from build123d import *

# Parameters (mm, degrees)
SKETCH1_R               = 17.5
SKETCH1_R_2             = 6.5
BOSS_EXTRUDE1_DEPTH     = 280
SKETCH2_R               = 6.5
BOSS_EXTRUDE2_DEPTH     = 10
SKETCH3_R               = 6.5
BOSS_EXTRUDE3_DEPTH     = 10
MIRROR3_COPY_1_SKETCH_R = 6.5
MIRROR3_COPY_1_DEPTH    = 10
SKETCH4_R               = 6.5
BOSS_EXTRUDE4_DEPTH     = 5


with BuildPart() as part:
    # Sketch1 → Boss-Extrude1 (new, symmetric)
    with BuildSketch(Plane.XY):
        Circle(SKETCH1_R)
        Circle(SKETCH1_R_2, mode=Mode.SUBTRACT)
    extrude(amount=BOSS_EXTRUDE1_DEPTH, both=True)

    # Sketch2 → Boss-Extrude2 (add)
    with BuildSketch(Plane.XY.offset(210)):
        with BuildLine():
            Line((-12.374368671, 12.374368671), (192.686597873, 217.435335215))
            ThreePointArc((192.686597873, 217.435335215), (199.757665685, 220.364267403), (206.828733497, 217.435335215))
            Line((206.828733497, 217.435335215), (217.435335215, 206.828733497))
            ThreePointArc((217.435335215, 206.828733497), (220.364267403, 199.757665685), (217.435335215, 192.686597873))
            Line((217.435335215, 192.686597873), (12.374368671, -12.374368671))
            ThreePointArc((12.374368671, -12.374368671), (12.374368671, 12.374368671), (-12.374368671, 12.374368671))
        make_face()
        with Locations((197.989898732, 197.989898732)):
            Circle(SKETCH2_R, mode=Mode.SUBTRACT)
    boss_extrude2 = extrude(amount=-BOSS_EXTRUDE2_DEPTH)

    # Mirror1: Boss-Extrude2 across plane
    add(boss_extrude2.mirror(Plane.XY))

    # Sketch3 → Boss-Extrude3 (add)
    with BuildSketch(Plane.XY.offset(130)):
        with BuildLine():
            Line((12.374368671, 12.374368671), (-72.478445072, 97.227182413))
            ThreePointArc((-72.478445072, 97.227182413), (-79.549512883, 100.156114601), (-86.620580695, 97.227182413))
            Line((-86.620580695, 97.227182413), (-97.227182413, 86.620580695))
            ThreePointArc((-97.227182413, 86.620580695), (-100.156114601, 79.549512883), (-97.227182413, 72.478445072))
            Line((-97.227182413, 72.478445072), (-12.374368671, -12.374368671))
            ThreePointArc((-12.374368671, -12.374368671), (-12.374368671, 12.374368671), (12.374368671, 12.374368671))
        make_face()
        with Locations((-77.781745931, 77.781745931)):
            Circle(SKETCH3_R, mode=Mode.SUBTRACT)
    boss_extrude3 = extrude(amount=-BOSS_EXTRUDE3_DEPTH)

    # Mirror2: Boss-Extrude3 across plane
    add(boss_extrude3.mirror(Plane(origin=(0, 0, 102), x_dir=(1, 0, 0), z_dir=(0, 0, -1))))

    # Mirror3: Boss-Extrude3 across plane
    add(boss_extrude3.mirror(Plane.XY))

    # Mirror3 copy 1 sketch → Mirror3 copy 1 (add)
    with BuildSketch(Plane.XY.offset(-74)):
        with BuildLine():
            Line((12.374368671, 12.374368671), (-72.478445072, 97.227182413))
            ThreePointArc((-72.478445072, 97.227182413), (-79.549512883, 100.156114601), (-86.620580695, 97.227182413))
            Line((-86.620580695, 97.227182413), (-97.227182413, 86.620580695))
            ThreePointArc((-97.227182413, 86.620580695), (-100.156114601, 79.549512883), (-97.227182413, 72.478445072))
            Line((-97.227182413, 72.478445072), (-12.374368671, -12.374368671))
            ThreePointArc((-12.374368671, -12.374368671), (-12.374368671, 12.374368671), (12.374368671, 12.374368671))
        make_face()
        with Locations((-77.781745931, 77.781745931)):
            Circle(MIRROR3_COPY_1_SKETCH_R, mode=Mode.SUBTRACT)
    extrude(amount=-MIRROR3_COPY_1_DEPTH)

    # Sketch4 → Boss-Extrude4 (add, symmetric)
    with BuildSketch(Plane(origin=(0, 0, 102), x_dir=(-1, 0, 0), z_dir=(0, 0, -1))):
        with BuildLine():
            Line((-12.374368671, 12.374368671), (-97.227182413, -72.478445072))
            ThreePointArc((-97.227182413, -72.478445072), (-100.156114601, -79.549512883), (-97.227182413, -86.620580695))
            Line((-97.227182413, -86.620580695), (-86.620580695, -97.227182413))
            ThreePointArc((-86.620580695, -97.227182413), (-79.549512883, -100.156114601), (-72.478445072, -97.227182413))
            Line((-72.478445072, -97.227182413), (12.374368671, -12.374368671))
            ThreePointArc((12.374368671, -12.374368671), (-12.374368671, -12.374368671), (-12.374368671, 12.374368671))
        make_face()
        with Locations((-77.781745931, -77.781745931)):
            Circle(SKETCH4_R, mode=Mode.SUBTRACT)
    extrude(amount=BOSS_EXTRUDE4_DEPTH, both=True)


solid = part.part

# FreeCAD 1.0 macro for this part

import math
import FreeCAD as App
import Part
import Sketcher
from FreeCAD import Vector
Q = App.Units.Quantity

doc = App.newDocument("Part")
params = doc.addObject("Spreadsheet::Sheet", "Params")
for row, (alias, value) in enumerate([
    ("sketch1_diameter", "35 mm"),
    ("sketch1_diameter2", "13 mm"),
    ("pad1_length", "560 mm"),
    ("sketch2_diameter", "13 mm"),
    ("sketch2_radius", "10 mm"),
    ("sketch2_radius2", "17.5 mm"),
    ("sketch2_length", "290 mm"),
    ("pad2_length", "10 mm"),
    ("sketch3_diameter", "13 mm"),
    ("sketch3_radius", "10 mm"),
    ("sketch3_radius2", "17.5 mm"),
    ("sketch3_length", "120 mm"),
    ("pad3_length", "10 mm"),
    ("sketch4_diameter", "13 mm"),
    ("sketch4_radius", "10 mm"),
    ("sketch4_radius2", "17.5 mm"),
    ("sketch4_length", "120 mm"),
    ("pad4_length", "10 mm"),
    ("sketch5_diameter", "13 mm"),
    ("sketch5_radius", "10 mm"),
    ("sketch5_radius2", "17.5 mm"),
    ("sketch5_length", "120 mm"),
    ("pad5_length", "10 mm"),
], start=1):
    params.set(f"A{row}", alias)
    params.set(f"B{row}", "=" + value)
    params.setAlias(f"B{row}", alias)

body = doc.addObject("PartDesign::Body", "Body")

sketch1 = body.newObject("Sketcher::SketchObject", "Sketch")
sketch1.AttachmentSupport = (doc.getObject("XY_Plane"), [""])
sketch1.MapMode = "FlatFace"
sketch1.addGeometry([
    Part.Circle(Vector(0, 0, 0), Vector(0, 0, 1), 17.5),
    Part.Circle(Vector(0, 0, 0), Vector(0, 0, 1), 6.5),
], False)
sketch1.addConstraint([
    Sketcher.Constraint("Coincident", 0, 3, -1, 1),
    Sketcher.Constraint("Coincident", 1, 3, -1, 1),
    Sketcher.Constraint("Diameter", 0, Q("35 mm")),
    Sketcher.Constraint("Diameter", 1, Q("13 mm")),
])
sketch1.setExpression("Constraints[2]", "Params.sketch1_diameter")
sketch1.setExpression("Constraints[3]", "Params.sketch1_diameter2")
pad1 = body.newObject("PartDesign::Pad", "Pad")
pad1.Profile = sketch1
pad1.setExpression("Length", "Params.pad1_length")
pad1.Midplane = True

sketch2 = body.newObject("Sketcher::SketchObject", "Sketch001")
sketch2.AttachmentSupport = (doc.getObject("XY_Plane"), [""])
sketch2.MapMode = "FlatFace"
sketch2.AttachmentOffset = App.Placement(Vector(0, 0, 210), App.Rotation())
sketch2.addGeometry([
    Part.LineSegment(Vector(192.686598, 217.435335, 0), Vector(-12.374369, 12.374369, 0)),
    Part.ArcOfCircle(Part.Circle(Vector(0, 0, 0), Vector(0, 0, 1), 17.5), math.radians(-45), math.radians(135)),
    Part.LineSegment(Vector(12.374369, -12.374369, 0), Vector(217.435335, 192.686598, 0)),
    Part.ArcOfCircle(Part.Circle(Vector(210.364267, 199.757666, 0), Vector(0, 0, 1), 10), math.radians(-45), math.radians(45)),
    Part.LineSegment(Vector(217.435335, 206.828733, 0), Vector(206.828733, 217.435335, 0)),
    Part.ArcOfCircle(Part.Circle(Vector(199.757666, 210.364267, 0), Vector(0, 0, 1), 10), math.radians(45), math.radians(135)),
    Part.Circle(Vector(197.989899, 197.989899, 0), Vector(0, 0, 1), 6.5),
], False)
sketch2.addConstraint([
    Sketcher.Constraint("Tangent", 0, 2, 1, 2),
    Sketcher.Constraint("Tangent", 1, 1, 2, 1),
    Sketcher.Constraint("Tangent", 2, 2, 3, 1),
    Sketcher.Constraint("Tangent", 3, 2, 4, 1),
    Sketcher.Constraint("Tangent", 4, 2, 5, 1),
    Sketcher.Constraint("Tangent", 5, 2, 0, 1),
    Sketcher.Constraint("Coincident", 1, 3, -1, 1),
    Sketcher.Constraint("Equal", 3, 5),
    Sketcher.Constraint("Parallel", 0, 2),
    Sketcher.Constraint("Perpendicular", 2, 4),
    Sketcher.Constraint("Horizontal", 4, 2, 5, 2),
    Sketcher.Constraint("Diameter", 6, Q("13 mm")),
    Sketcher.Constraint("Radius", 3, Q("10 mm")),
    Sketcher.Constraint("Radius", 1, Q("17.5 mm")),
    Sketcher.Constraint("Distance", 0, Q("290 mm")),
    Sketcher.Constraint("DistanceX", -1, 1, 6, 3, Q("197.989899 mm")),
    Sketcher.Constraint("DistanceY", -1, 1, 6, 3, Q("197.989899 mm")),
])
sketch2.setExpression("Constraints[11]", "Params.sketch2_diameter")
sketch2.setExpression("Constraints[12]", "Params.sketch2_radius")
sketch2.setExpression("Constraints[13]", "Params.sketch2_radius2")
sketch2.setExpression("Constraints[14]", "Params.sketch2_length")
pad2 = body.newObject("PartDesign::Pad", "Pad001")
pad2.Profile = sketch2
pad2.setExpression("Length", "Params.pad2_length")
pad2.Reversed = True
doc.recompute()

mirrored = body.newObject("PartDesign::Mirrored", "Mirrored")
mirrored.Originals = [pad2]
mirrored.MirrorPlane = (doc.getObject("XY_Plane"), [""])
body.Tip = mirrored

sketch3 = body.newObject("Sketcher::SketchObject", "Sketch002")
sketch3.AttachmentSupport = (doc.getObject("XY_Plane"), [""])
sketch3.MapMode = "FlatFace"
sketch3.AttachmentOffset = App.Placement(Vector(0, 0, 130), App.Rotation())
sketch3.addGeometry([
    Part.LineSegment(Vector(12.374369, 12.374369, 0), Vector(-72.478445, 97.227182, 0)),
    Part.ArcOfCircle(Part.Circle(Vector(-79.549513, 90.156115, 0), Vector(0, 0, 1), 10), math.radians(45), math.radians(135)),
    Part.LineSegment(Vector(-86.620581, 97.227182, 0), Vector(-97.227182, 86.620581, 0)),
    Part.ArcOfCircle(Part.Circle(Vector(-90.156115, 79.549513, 0), Vector(0, 0, 1), 10), math.radians(135), math.radians(225)),
    Part.LineSegment(Vector(-97.227182, 72.478445, 0), Vector(-12.374369, -12.374369, 0)),
    Part.ArcOfCircle(Part.Circle(Vector(0, 0, 0), Vector(0, 0, 1), 17.5), math.radians(45), math.radians(225)),
    Part.Circle(Vector(-77.781746, 77.781746, 0), Vector(0, 0, 1), 6.5),
], False)
sketch3.addConstraint([
    Sketcher.Constraint("Tangent", 0, 2, 1, 1),
    Sketcher.Constraint("Tangent", 1, 2, 2, 1),
    Sketcher.Constraint("Tangent", 2, 2, 3, 1),
    Sketcher.Constraint("Tangent", 3, 2, 4, 1),
    Sketcher.Constraint("Tangent", 4, 2, 5, 2),
    Sketcher.Constraint("Tangent", 5, 1, 0, 1),
    Sketcher.Constraint("Coincident", 5, 3, -1, 1),
    Sketcher.Constraint("Equal", 1, 3),
    Sketcher.Constraint("Perpendicular", 0, 2),
    Sketcher.Constraint("Perpendicular", 2, 4),
    Sketcher.Constraint("Horizontal", 0, 2, 1, 2),
    Sketcher.Constraint("Diameter", 6, Q("13 mm")),
    Sketcher.Constraint("Radius", 1, Q("10 mm")),
    Sketcher.Constraint("Radius", 5, Q("17.5 mm")),
    Sketcher.Constraint("Distance", 0, Q("120 mm")),
    Sketcher.Constraint("DistanceX", 6, 3, 0, 2, Q("5.303301 mm")),
    Sketcher.Constraint("DistanceY", 3, 2, 6, 3, Q("5.303301 mm")),
])
sketch3.setExpression("Constraints[11]", "Params.sketch3_diameter")
sketch3.setExpression("Constraints[12]", "Params.sketch3_radius")
sketch3.setExpression("Constraints[13]", "Params.sketch3_radius2")
sketch3.setExpression("Constraints[14]", "Params.sketch3_length")
pad3 = body.newObject("PartDesign::Pad", "Pad002")
pad3.Profile = sketch3
pad3.setExpression("Length", "Params.pad3_length")
pad3.Reversed = True
doc.recompute()

datumplane = body.newObject("PartDesign::Plane", "DatumPlane")
datumplane.AttachmentSupport = (doc.getObject("XY_Plane"), [""])
datumplane.MapMode = "FlatFace"
datumplane.AttachmentOffset = App.Placement(Vector(0, 0, 102), App.Rotation())
mirrored2 = body.newObject("PartDesign::Mirrored", "Mirrored001")
mirrored2.Originals = [pad3]
mirrored2.MirrorPlane = (datumplane, [""])
body.Tip = mirrored2
doc.recompute()

mirrored3 = body.newObject("PartDesign::Mirrored", "Mirrored002")
mirrored3.Originals = [pad3]
mirrored3.MirrorPlane = (doc.getObject("XY_Plane"), [""])
body.Tip = mirrored3

sketch4 = body.newObject("Sketcher::SketchObject", "Sketch003")
sketch4.AttachmentSupport = (doc.getObject("XY_Plane"), [""])
sketch4.MapMode = "FlatFace"
sketch4.AttachmentOffset = App.Placement(Vector(0, 0, -74), App.Rotation())
sketch4.addGeometry([
    Part.LineSegment(Vector(12.374369, 12.374369, 0), Vector(-72.478445, 97.227182, 0)),
    Part.ArcOfCircle(Part.Circle(Vector(-79.549513, 90.156115, 0), Vector(0, 0, 1), 10), math.radians(45), math.radians(135)),
    Part.LineSegment(Vector(-86.620581, 97.227182, 0), Vector(-97.227182, 86.620581, 0)),
    Part.ArcOfCircle(Part.Circle(Vector(-90.156115, 79.549513, 0), Vector(0, 0, 1), 10), math.radians(135), math.radians(225)),
    Part.LineSegment(Vector(-97.227182, 72.478445, 0), Vector(-12.374369, -12.374369, 0)),
    Part.ArcOfCircle(Part.Circle(Vector(0, 0, 0), Vector(0, 0, 1), 17.5), math.radians(45), math.radians(225)),
    Part.Circle(Vector(-77.781746, 77.781746, 0), Vector(0, 0, 1), 6.5),
], False)
sketch4.addConstraint([
    Sketcher.Constraint("Tangent", 0, 2, 1, 1),
    Sketcher.Constraint("Tangent", 1, 2, 2, 1),
    Sketcher.Constraint("Tangent", 2, 2, 3, 1),
    Sketcher.Constraint("Tangent", 3, 2, 4, 1),
    Sketcher.Constraint("Tangent", 4, 2, 5, 2),
    Sketcher.Constraint("Tangent", 5, 1, 0, 1),
    Sketcher.Constraint("Coincident", 5, 3, -1, 1),
    Sketcher.Constraint("Equal", 1, 3),
    Sketcher.Constraint("Perpendicular", 0, 2),
    Sketcher.Constraint("Perpendicular", 2, 4),
    Sketcher.Constraint("Horizontal", 0, 2, 1, 2),
    Sketcher.Constraint("Diameter", 6, Q("13 mm")),
    Sketcher.Constraint("Radius", 1, Q("10 mm")),
    Sketcher.Constraint("Radius", 5, Q("17.5 mm")),
    Sketcher.Constraint("Distance", 0, Q("120 mm")),
    Sketcher.Constraint("DistanceX", 6, 3, 0, 2, Q("5.303301 mm")),
    Sketcher.Constraint("DistanceY", 3, 2, 6, 3, Q("5.303301 mm")),
])
sketch4.setExpression("Constraints[11]", "Params.sketch4_diameter")
sketch4.setExpression("Constraints[12]", "Params.sketch4_radius")
sketch4.setExpression("Constraints[13]", "Params.sketch4_radius2")
sketch4.setExpression("Constraints[14]", "Params.sketch4_length")
pad4 = body.newObject("PartDesign::Pad", "Pad003")
pad4.Profile = sketch4
pad4.setExpression("Length", "Params.pad4_length")
pad4.Reversed = True

sketch5 = body.newObject("Sketcher::SketchObject", "Sketch004")
sketch5.AttachmentSupport = (doc.getObject("XY_Plane"), [""])
sketch5.MapMode = "FlatFace"
sketch5.AttachmentOffset = App.Placement(Vector(0, 0, 102), App.Rotation())
sketch5.addGeometry([
    Part.LineSegment(Vector(12.374369, 12.374369, 0), Vector(97.227182, -72.478445, 0)),
    Part.ArcOfCircle(Part.Circle(Vector(90.156115, -79.549513, 0), Vector(0, 0, 1), 10), math.radians(-45), math.radians(45)),
    Part.LineSegment(Vector(97.227182, -86.620581, 0), Vector(86.620581, -97.227182, 0)),
    Part.ArcOfCircle(Part.Circle(Vector(79.549513, -90.156115, 0), Vector(0, 0, 1), 10), math.radians(-135), math.radians(-45)),
    Part.LineSegment(Vector(72.478445, -97.227182, 0), Vector(-12.374369, -12.374369, 0)),
    Part.ArcOfCircle(Part.Circle(Vector(0, 0, 0), Vector(0, 0, 1), 17.5), math.radians(-135), math.radians(45)),
    Part.Circle(Vector(77.781746, -77.781746, 0), Vector(0, 0, 1), 6.5),
], False)
sketch5.addConstraint([
    Sketcher.Constraint("Tangent", 0, 2, 1, 2),
    Sketcher.Constraint("Tangent", 1, 1, 2, 1),
    Sketcher.Constraint("Tangent", 2, 2, 3, 2),
    Sketcher.Constraint("Tangent", 3, 1, 4, 1),
    Sketcher.Constraint("Tangent", 4, 2, 5, 1),
    Sketcher.Constraint("Tangent", 5, 2, 0, 1),
    Sketcher.Constraint("Coincident", 5, 3, -1, 1),
    Sketcher.Constraint("Equal", 1, 3),
    Sketcher.Constraint("Perpendicular", 0, 2),
    Sketcher.Constraint("Perpendicular", 2, 4),
    Sketcher.Constraint("Horizontal", 2, 2, 3, 1),
    Sketcher.Constraint("Diameter", 6, Q("13 mm")),
    Sketcher.Constraint("Radius", 1, Q("10 mm")),
    Sketcher.Constraint("Radius", 5, Q("17.5 mm")),
    Sketcher.Constraint("Distance", 0, Q("120 mm")),
    Sketcher.Constraint("DistanceY", 6, 3, 0, 2, Q("5.303301 mm")),
    Sketcher.Constraint("DistanceX", 3, 1, 6, 3, Q("5.303301 mm")),
])
sketch5.setExpression("Constraints[11]", "Params.sketch5_diameter")
sketch5.setExpression("Constraints[12]", "Params.sketch5_radius")
sketch5.setExpression("Constraints[13]", "Params.sketch5_radius2")
sketch5.setExpression("Constraints[14]", "Params.sketch5_length")
pad5 = body.newObject("PartDesign::Pad", "Pad004")
pad5.Profile = sketch5
pad5.setExpression("Length", "Params.pad5_length")
pad5.Midplane = True

doc.recompute()
